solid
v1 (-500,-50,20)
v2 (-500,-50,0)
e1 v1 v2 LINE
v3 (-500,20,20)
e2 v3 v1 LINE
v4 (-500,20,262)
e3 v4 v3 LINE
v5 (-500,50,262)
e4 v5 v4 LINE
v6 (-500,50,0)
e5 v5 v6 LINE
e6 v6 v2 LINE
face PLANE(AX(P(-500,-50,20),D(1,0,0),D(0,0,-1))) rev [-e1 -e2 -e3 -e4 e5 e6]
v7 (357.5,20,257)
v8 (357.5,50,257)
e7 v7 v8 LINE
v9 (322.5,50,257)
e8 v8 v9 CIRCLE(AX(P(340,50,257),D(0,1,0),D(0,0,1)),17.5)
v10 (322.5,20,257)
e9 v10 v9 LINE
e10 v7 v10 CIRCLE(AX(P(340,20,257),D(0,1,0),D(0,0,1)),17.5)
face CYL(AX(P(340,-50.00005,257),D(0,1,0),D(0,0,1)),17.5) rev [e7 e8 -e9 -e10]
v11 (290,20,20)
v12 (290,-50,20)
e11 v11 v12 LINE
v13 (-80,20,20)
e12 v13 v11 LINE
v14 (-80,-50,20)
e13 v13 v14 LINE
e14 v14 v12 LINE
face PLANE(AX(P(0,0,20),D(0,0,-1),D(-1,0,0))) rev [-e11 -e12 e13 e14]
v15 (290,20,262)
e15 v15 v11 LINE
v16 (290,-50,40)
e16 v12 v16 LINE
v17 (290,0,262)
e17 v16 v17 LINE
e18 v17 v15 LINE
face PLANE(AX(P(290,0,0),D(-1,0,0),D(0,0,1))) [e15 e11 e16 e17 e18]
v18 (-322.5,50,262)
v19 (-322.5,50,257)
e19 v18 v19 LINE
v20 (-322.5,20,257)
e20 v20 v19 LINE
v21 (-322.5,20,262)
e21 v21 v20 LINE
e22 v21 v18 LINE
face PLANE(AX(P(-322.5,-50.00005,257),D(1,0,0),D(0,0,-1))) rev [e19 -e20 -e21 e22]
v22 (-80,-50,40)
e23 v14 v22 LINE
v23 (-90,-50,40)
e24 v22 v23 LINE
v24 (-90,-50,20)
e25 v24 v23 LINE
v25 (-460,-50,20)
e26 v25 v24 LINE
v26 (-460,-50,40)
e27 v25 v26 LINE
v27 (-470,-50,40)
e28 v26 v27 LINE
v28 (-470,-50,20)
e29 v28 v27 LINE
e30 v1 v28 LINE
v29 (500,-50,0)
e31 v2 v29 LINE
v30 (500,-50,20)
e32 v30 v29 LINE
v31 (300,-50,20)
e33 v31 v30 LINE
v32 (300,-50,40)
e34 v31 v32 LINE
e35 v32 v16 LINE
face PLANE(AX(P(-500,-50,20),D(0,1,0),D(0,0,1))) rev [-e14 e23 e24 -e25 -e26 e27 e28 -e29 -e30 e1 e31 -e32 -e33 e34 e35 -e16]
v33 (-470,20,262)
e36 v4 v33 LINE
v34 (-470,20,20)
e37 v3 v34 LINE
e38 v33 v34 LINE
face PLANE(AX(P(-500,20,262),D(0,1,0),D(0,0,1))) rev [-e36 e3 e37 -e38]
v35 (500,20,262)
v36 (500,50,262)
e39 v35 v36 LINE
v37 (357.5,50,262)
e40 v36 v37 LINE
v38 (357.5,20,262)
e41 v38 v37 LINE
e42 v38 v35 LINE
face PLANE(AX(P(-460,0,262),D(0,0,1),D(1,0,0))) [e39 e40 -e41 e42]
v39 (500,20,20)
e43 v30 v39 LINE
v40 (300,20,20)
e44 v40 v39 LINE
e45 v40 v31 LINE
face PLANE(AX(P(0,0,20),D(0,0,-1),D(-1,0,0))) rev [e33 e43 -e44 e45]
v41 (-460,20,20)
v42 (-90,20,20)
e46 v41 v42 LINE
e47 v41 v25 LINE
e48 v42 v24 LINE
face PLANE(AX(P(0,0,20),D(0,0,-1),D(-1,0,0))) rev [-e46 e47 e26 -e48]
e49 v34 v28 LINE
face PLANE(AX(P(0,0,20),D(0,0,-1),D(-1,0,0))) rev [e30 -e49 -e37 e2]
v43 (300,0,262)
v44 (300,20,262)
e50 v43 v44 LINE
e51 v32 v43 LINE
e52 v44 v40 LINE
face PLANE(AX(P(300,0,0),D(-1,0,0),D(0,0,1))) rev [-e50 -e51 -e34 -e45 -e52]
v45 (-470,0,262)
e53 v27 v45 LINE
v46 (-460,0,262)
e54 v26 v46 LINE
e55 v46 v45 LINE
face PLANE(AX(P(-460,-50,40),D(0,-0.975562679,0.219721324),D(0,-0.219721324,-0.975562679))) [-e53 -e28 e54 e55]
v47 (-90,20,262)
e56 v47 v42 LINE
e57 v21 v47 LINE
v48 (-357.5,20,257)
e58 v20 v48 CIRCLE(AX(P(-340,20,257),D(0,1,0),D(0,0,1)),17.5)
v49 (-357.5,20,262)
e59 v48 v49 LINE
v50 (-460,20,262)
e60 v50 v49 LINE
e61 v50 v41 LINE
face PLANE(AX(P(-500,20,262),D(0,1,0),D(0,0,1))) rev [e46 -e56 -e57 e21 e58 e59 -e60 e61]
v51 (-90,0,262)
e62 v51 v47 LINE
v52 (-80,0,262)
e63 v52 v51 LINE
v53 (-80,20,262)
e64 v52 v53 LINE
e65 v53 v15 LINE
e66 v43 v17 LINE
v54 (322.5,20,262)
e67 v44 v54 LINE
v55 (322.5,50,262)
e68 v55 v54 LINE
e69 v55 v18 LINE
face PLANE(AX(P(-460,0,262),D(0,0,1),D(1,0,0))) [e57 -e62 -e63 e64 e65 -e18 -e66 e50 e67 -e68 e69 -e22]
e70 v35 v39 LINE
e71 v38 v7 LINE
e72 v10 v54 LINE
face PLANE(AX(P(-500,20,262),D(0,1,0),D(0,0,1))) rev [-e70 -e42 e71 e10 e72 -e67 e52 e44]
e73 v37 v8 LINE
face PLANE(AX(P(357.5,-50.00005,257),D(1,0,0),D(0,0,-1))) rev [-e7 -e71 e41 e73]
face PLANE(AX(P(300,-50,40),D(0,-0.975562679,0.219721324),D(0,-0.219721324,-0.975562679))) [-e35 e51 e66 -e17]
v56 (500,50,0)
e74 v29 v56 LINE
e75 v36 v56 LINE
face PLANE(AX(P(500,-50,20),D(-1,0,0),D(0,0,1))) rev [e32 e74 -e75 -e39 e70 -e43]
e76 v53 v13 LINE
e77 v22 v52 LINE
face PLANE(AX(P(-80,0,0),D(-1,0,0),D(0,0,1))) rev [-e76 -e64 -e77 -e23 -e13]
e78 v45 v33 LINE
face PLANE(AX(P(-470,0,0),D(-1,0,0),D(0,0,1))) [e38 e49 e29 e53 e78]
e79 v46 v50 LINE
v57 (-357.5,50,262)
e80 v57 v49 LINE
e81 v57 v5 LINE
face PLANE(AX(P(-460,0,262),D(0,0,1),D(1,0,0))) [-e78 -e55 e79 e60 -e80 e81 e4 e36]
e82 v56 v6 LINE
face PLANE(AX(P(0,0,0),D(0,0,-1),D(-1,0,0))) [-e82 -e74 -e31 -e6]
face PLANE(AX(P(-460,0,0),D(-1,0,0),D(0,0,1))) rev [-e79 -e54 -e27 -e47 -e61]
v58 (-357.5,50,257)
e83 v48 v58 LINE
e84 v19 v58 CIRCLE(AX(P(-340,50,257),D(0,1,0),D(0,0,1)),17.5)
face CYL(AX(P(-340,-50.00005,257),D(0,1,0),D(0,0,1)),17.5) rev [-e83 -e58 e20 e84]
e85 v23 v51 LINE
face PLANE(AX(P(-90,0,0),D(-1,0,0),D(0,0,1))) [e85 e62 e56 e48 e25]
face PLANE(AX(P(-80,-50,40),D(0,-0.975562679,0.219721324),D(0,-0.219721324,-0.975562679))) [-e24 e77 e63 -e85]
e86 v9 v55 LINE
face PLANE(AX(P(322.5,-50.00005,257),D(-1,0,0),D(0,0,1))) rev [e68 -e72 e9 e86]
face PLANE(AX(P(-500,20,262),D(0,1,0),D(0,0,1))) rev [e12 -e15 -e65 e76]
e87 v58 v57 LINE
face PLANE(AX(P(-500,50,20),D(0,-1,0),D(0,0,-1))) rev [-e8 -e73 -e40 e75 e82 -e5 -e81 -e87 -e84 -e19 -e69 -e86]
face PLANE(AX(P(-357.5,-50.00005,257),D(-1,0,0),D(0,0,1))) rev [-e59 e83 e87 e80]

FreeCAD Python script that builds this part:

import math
import FreeCAD as App
import Part
import Sketcher

V = App.Vector
Q = App.Units.Quantity


def add_polygon(sketch, points):
    """Adds a closed chain of lines whose ends are joined by coincident constraints."""
    first, n = sketch.GeometryCount, len(points)
    for a, b in zip(points, points[1:] + points[:1]):
        sketch.addGeometry(Part.LineSegment(App.Vector(*a, 0), App.Vector(*b, 0)), False)
    for i in range(n):
        sketch.addConstraint(Sketcher.Constraint("Coincident", first + i, 2, first + (i + 1) % n, 1))

doc = App.newDocument("Part")
body = doc.addObject("PartDesign::Body", "Body")

# Sketch on XY plane
sketch1 = body.newObject("Sketcher::SketchObject", "Sketch")
sketch1.AttachmentSupport = (doc.getObject("XY_Plane"), [""])
sketch1.MapMode = "FlatFace"
add_polygon(sketch1, [(-500, 50), (-500, -50), (500, -50), (500, 50)])  # lines 0-3
sketch1.addConstraint(Sketcher.Constraint("Vertical", 0))
sketch1.addConstraint(Sketcher.Constraint("Horizontal", 1))
sketch1.addConstraint(Sketcher.Constraint("Vertical", 2))
sketch1.addConstraint(Sketcher.Constraint("Horizontal", 3))
sketch1.addConstraint(Sketcher.Constraint("Symmetric", 0, 2, 2, 2, -1, 1))
sketch1.addConstraint(Sketcher.Constraint("DistanceX", 1, 1, 1, 2, Q("1000 mm")))
sketch1.addConstraint(Sketcher.Constraint("DistanceY", 0, 2, 0, 1, Q("100 mm")))
pad1 = body.newObject("PartDesign::Pad", "Pad")
pad1.Profile = sketch1
pad1.Length = 20
body2 = doc.addObject("PartDesign::Body", "Body001")

# Sketch on XY plane
sketch2 = body2.newObject("Sketcher::SketchObject", "Sketch001")
sketch2.AttachmentSupport = (doc.getObject("XY_Plane001"), [""])
sketch2.MapMode = "FlatFace"
sketch2.AttachmentOffset = App.Placement(V(0, 0, 20), App.Rotation())
add_polygon(sketch2, [(-500, 50), (-500, 20), (500, 20), (500, 50)])  # lines 0-3
sketch2.addConstraint(Sketcher.Constraint("Vertical", 0))
sketch2.addConstraint(Sketcher.Constraint("Horizontal", 1))
sketch2.addConstraint(Sketcher.Constraint("Vertical", 2))
sketch2.addConstraint(Sketcher.Constraint("Horizontal", 3))
sketch2.addConstraint(Sketcher.Constraint("DistanceX", 1, 1, 1, 2, Q("1000 mm")))
sketch2.addConstraint(Sketcher.Constraint("DistanceY", 0, 2, 0, 1, Q("30 mm")))
sketch2.addConstraint(Sketcher.Constraint("DistanceX", 0, 2, -1, 1, Q("500 mm")))
sketch2.addConstraint(Sketcher.Constraint("DistanceY", -1, 1, 0, 2, Q("20 mm")))
pad2 = body2.newObject("PartDesign::Pad", "Pad001")
pad2.Profile = sketch2
pad2.Length = 242
doc.recompute()

boolean = body.newObject("PartDesign::Boolean", "Boolean")
boolean.Type = "Fuse"
boolean.addObjects([body2])

# Sketch on YZ plane
sketch3 = body.newObject("Sketcher::SketchObject", "Sketch002")
sketch3.AttachmentSupport = (doc.getObject("YZ_Plane"), [""])
sketch3.MapMode = "FlatFace"
sketch3.AttachmentOffset = App.Placement(V(0, 0, -470), App.Rotation())
add_polygon(sketch3, [(20, 262), (20, 20), (-50, 20), (-50, 40), (0, 262)])  # lines 0-4
sketch3.addConstraint(Sketcher.Constraint("Vertical", 0))
sketch3.addConstraint(Sketcher.Constraint("Horizontal", 1))
sketch3.addConstraint(Sketcher.Constraint("Vertical", 2))
sketch3.addConstraint(Sketcher.Constraint("Horizontal", 4))
sketch3.addConstraint(Sketcher.Constraint("PointOnObject", 3, 2, -2))
sketch3.addConstraint(Sketcher.Constraint("Equal", 4, 2))
sketch3.addConstraint(Sketcher.Constraint("DistanceX", 1, 2, 1, 1, Q("70 mm")))
sketch3.addConstraint(Sketcher.Constraint("DistanceX", 4, 1, 4, 2, Q("20 mm")))
sketch3.addConstraint(Sketcher.Constraint("DistanceY", 0, 2, 0, 1, Q("242 mm")))
sketch3.addConstraint(Sketcher.Constraint("DistanceY", -1, 1, 0, 2, Q("20 mm")))
pad3 = body.newObject("PartDesign::Pad", "Pad002")
pad3.Profile = sketch3
pad3.Length = 10
doc.recompute()

linearpattern = body.newObject("PartDesign::LinearPattern", "LinearPattern")
linearpattern.Originals = [pad3]
linearpattern.Direction = (doc.getObject("X_Axis"), [""])
linearpattern.Mode = "offset"
linearpattern.Offset = 380
linearpattern.Occurrences = 3
body.Tip = linearpattern

# Sketch on XZ plane
sketch4 = body.newObject("Sketcher::SketchObject", "Sketch003")
sketch4.AttachmentSupport = (doc.getObject("XZ_Plane"), [""])
sketch4.MapMode = "FlatFace"
sketch4.AttachmentOffset = App.Placement(V(0, 0, -50), App.Rotation())
sketch4.addGeometry(Part.LineSegment(V(357.5, 337.435999, 0), V(357.5, 257, 0)), False)
sketch4.addGeometry(Part.ArcOfCircle(Part.Circle(V(340, 257, 0), V(0, 0, 1), 17.5), math.radians(180), math.radians(360)), False)
sketch4.addGeometry(Part.LineSegment(V(322.5, 257, 0), V(322.5, 337.435999, 0)), False)
sketch4.addGeometry(Part.ArcOfCircle(Part.Circle(V(340, 337.435999, 0), V(0, 0, 1), 17.5), math.radians(0), math.radians(180)), False)
sketch4.addGeometry(Part.LineSegment(V(-322.5, 349.000884, 0), V(-322.5, 257, 0)), False)
sketch4.addGeometry(Part.ArcOfCircle(Part.Circle(V(-340, 257, 0), V(0, 0, 1), 17.5), math.radians(180), math.radians(360)), False)
sketch4.addGeometry(Part.LineSegment(V(-357.5, 257, 0), V(-357.5, 349.000884, 0)), False)
sketch4.addGeometry(Part.ArcOfCircle(Part.Circle(V(-340, 349.000884, 0), V(0, 0, 1), 17.5), math.radians(0), math.radians(180)), False)
sketch4.addConstraint(Sketcher.Constraint("Tangent", 0, 2, 1, 2))
sketch4.addConstraint(Sketcher.Constraint("Tangent", 1, 1, 2, 1))
sketch4.addConstraint(Sketcher.Constraint("Tangent", 2, 2, 3, 2))
sketch4.addConstraint(Sketcher.Constraint("Tangent", 3, 1, 0, 1))
sketch4.addConstraint(Sketcher.Constraint("Tangent", 4, 2, 5, 2))
sketch4.addConstraint(Sketcher.Constraint("Tangent", 5, 1, 6, 1))
sketch4.addConstraint(Sketcher.Constraint("Tangent", 6, 2, 7, 2))
sketch4.addConstraint(Sketcher.Constraint("Tangent", 7, 1, 4, 1))
sketch4.addConstraint(Sketcher.Constraint("Vertical", 0))
sketch4.addConstraint(Sketcher.Constraint("Vertical", 2))
sketch4.addConstraint(Sketcher.Constraint("Vertical", 4))
sketch4.addConstraint(Sketcher.Constraint("Vertical", 6))
sketch4.addConstraint(Sketcher.Constraint("Equal", 3, 5))
sketch4.addConstraint(Sketcher.Constraint("Symmetric", 1, 3, 5, 3, -2))
sketch4.addConstraint(Sketcher.Constraint("Radius", 1, Q("17.5 mm")))
sketch4.addConstraint(Sketcher.Constraint("DistanceX", -1, 1, 1, 3, Q("340 mm")))
sketch4.addConstraint(Sketcher.Constraint("DistanceY", -1, 1, 1, 3, Q("257 mm")))
sketch4.addConstraint(Sketcher.Constraint("DistanceY", 0, 2, 0, 1, Q("80.435999 mm")))
sketch4.addConstraint(Sketcher.Constraint("DistanceY", 4, 2, 4, 1, Q("92.000884 mm")))
pocket1 = body.newObject("PartDesign::Pocket", "Pocket")
pocket1.Profile = sketch4
pocket1.Type = "ThroughAll"
pocket1.Reversed = True

doc.recompute()
